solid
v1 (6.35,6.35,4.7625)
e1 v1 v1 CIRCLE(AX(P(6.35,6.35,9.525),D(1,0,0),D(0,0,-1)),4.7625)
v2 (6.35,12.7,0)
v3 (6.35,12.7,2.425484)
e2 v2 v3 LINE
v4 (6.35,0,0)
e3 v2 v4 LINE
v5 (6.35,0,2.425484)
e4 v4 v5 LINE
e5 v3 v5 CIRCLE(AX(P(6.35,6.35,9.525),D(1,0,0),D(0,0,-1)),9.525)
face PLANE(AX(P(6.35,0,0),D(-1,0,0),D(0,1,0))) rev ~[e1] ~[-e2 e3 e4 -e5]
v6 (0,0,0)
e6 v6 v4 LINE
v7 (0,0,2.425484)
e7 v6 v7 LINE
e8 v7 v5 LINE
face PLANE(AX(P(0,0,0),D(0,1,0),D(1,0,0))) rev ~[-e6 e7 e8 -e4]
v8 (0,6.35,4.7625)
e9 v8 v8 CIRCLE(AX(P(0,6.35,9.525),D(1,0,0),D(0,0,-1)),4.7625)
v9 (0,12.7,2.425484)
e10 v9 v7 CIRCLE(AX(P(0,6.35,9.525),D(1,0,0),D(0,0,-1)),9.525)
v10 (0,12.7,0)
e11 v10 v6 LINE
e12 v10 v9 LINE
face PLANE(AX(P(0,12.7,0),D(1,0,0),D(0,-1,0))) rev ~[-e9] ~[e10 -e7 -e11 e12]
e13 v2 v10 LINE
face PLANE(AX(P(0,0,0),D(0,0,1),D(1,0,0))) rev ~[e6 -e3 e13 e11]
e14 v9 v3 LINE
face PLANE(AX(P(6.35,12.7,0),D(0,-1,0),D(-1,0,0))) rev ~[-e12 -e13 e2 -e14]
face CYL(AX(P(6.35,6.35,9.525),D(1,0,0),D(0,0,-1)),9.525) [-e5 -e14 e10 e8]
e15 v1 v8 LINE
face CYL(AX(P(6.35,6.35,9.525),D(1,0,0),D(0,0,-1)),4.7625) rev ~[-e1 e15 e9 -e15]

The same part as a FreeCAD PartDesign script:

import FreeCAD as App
import Part
import Sketcher

V = App.Vector
Q = App.Units.Quantity


def add_polygon(sketch, points):
    """Adds a closed chain of lines whose ends are joined by coincident constraints."""
    first, n = sketch.GeometryCount, len(points)
    for a, b in zip(points, points[1:] + points[:1]):
        sketch.addGeometry(Part.LineSegment(App.Vector(*a, 0), App.Vector(*b, 0)), False)
    for i in range(n):
        sketch.addConstraint(Sketcher.Constraint("Coincident", first + i, 2, first + (i + 1) % n, 1))

doc = App.newDocument("Part")
body = doc.addObject("PartDesign::Body", "Body")

sketch1 = body.newObject("Sketcher::SketchObject", "Sketch")
sketch1.AttachmentSupport = (doc.getObject("XY_Plane"), [""])
sketch1.MapMode = "FlatFace"
add_polygon(sketch1, [(0, 13), (0, 0), (6, 0), (6, 13)])
sketch1.addConstraint(Sketcher.Constraint("Vertical", 0))
sketch1.addConstraint(Sketcher.Constraint("Horizontal", 1))
sketch1.addConstraint(Sketcher.Constraint("Vertical", 2))
sketch1.addConstraint(Sketcher.Constraint("Horizontal", 3))
sketch1.addConstraint(Sketcher.Constraint("Coincident", 0, 2, -1, 1))
sketch1.addConstraint(Sketcher.Constraint("DistanceY", 0, 2, 0, 1, Q("0.5 in")))
sketch1.addConstraint(Sketcher.Constraint("DistanceX", 1, 1, 1, 2, Q("0.25 in")))
pad1 = body.newObject("PartDesign::Pad", "Pad")
pad1.Profile = sketch1
pad1.Length = Q("0.125 in")

sketch2 = body.newObject("Sketcher::SketchObject", "Sketch001")
sketch2.AttachmentSupport = (doc.getObject("YZ_Plane"), [""])
sketch2.MapMode = "FlatFace"
sketch2.AttachmentOffset = App.Placement(V(0, 0, 0.25 * 25.4), App.Rotation())
sketch2.addGeometry(Part.Circle(V(6.3, 9.5, 0), V(0, 0, 1), 9.5), False)
sketch2.addGeometry(Part.Circle(V(6.3, 9.5, 0), V(0, 0, 1), 4.8), False)
sketch2.addConstraint(Sketcher.Constraint("Coincident", 1, 3, 0, 3))
sketch2.addConstraint(Sketcher.Constraint("Diameter", 0, Q("0.75 in")))
sketch2.addConstraint(Sketcher.Constraint("Diameter", 1, Q("0.375 in")))
sketch2.addConstraint(Sketcher.Constraint("DistanceY", -1, 1, 0, 3, Q("0.375 in")))
sketch2.addConstraint(Sketcher.Constraint("DistanceX", -1, 1, 0, 3, Q("0.25 in")))
pad2 = body.newObject("PartDesign::Pad", "Pad001")
pad2.Profile = sketch2
pad2.Length = Q("0.25 in")
pad2.Reversed = True

doc.recompute()
